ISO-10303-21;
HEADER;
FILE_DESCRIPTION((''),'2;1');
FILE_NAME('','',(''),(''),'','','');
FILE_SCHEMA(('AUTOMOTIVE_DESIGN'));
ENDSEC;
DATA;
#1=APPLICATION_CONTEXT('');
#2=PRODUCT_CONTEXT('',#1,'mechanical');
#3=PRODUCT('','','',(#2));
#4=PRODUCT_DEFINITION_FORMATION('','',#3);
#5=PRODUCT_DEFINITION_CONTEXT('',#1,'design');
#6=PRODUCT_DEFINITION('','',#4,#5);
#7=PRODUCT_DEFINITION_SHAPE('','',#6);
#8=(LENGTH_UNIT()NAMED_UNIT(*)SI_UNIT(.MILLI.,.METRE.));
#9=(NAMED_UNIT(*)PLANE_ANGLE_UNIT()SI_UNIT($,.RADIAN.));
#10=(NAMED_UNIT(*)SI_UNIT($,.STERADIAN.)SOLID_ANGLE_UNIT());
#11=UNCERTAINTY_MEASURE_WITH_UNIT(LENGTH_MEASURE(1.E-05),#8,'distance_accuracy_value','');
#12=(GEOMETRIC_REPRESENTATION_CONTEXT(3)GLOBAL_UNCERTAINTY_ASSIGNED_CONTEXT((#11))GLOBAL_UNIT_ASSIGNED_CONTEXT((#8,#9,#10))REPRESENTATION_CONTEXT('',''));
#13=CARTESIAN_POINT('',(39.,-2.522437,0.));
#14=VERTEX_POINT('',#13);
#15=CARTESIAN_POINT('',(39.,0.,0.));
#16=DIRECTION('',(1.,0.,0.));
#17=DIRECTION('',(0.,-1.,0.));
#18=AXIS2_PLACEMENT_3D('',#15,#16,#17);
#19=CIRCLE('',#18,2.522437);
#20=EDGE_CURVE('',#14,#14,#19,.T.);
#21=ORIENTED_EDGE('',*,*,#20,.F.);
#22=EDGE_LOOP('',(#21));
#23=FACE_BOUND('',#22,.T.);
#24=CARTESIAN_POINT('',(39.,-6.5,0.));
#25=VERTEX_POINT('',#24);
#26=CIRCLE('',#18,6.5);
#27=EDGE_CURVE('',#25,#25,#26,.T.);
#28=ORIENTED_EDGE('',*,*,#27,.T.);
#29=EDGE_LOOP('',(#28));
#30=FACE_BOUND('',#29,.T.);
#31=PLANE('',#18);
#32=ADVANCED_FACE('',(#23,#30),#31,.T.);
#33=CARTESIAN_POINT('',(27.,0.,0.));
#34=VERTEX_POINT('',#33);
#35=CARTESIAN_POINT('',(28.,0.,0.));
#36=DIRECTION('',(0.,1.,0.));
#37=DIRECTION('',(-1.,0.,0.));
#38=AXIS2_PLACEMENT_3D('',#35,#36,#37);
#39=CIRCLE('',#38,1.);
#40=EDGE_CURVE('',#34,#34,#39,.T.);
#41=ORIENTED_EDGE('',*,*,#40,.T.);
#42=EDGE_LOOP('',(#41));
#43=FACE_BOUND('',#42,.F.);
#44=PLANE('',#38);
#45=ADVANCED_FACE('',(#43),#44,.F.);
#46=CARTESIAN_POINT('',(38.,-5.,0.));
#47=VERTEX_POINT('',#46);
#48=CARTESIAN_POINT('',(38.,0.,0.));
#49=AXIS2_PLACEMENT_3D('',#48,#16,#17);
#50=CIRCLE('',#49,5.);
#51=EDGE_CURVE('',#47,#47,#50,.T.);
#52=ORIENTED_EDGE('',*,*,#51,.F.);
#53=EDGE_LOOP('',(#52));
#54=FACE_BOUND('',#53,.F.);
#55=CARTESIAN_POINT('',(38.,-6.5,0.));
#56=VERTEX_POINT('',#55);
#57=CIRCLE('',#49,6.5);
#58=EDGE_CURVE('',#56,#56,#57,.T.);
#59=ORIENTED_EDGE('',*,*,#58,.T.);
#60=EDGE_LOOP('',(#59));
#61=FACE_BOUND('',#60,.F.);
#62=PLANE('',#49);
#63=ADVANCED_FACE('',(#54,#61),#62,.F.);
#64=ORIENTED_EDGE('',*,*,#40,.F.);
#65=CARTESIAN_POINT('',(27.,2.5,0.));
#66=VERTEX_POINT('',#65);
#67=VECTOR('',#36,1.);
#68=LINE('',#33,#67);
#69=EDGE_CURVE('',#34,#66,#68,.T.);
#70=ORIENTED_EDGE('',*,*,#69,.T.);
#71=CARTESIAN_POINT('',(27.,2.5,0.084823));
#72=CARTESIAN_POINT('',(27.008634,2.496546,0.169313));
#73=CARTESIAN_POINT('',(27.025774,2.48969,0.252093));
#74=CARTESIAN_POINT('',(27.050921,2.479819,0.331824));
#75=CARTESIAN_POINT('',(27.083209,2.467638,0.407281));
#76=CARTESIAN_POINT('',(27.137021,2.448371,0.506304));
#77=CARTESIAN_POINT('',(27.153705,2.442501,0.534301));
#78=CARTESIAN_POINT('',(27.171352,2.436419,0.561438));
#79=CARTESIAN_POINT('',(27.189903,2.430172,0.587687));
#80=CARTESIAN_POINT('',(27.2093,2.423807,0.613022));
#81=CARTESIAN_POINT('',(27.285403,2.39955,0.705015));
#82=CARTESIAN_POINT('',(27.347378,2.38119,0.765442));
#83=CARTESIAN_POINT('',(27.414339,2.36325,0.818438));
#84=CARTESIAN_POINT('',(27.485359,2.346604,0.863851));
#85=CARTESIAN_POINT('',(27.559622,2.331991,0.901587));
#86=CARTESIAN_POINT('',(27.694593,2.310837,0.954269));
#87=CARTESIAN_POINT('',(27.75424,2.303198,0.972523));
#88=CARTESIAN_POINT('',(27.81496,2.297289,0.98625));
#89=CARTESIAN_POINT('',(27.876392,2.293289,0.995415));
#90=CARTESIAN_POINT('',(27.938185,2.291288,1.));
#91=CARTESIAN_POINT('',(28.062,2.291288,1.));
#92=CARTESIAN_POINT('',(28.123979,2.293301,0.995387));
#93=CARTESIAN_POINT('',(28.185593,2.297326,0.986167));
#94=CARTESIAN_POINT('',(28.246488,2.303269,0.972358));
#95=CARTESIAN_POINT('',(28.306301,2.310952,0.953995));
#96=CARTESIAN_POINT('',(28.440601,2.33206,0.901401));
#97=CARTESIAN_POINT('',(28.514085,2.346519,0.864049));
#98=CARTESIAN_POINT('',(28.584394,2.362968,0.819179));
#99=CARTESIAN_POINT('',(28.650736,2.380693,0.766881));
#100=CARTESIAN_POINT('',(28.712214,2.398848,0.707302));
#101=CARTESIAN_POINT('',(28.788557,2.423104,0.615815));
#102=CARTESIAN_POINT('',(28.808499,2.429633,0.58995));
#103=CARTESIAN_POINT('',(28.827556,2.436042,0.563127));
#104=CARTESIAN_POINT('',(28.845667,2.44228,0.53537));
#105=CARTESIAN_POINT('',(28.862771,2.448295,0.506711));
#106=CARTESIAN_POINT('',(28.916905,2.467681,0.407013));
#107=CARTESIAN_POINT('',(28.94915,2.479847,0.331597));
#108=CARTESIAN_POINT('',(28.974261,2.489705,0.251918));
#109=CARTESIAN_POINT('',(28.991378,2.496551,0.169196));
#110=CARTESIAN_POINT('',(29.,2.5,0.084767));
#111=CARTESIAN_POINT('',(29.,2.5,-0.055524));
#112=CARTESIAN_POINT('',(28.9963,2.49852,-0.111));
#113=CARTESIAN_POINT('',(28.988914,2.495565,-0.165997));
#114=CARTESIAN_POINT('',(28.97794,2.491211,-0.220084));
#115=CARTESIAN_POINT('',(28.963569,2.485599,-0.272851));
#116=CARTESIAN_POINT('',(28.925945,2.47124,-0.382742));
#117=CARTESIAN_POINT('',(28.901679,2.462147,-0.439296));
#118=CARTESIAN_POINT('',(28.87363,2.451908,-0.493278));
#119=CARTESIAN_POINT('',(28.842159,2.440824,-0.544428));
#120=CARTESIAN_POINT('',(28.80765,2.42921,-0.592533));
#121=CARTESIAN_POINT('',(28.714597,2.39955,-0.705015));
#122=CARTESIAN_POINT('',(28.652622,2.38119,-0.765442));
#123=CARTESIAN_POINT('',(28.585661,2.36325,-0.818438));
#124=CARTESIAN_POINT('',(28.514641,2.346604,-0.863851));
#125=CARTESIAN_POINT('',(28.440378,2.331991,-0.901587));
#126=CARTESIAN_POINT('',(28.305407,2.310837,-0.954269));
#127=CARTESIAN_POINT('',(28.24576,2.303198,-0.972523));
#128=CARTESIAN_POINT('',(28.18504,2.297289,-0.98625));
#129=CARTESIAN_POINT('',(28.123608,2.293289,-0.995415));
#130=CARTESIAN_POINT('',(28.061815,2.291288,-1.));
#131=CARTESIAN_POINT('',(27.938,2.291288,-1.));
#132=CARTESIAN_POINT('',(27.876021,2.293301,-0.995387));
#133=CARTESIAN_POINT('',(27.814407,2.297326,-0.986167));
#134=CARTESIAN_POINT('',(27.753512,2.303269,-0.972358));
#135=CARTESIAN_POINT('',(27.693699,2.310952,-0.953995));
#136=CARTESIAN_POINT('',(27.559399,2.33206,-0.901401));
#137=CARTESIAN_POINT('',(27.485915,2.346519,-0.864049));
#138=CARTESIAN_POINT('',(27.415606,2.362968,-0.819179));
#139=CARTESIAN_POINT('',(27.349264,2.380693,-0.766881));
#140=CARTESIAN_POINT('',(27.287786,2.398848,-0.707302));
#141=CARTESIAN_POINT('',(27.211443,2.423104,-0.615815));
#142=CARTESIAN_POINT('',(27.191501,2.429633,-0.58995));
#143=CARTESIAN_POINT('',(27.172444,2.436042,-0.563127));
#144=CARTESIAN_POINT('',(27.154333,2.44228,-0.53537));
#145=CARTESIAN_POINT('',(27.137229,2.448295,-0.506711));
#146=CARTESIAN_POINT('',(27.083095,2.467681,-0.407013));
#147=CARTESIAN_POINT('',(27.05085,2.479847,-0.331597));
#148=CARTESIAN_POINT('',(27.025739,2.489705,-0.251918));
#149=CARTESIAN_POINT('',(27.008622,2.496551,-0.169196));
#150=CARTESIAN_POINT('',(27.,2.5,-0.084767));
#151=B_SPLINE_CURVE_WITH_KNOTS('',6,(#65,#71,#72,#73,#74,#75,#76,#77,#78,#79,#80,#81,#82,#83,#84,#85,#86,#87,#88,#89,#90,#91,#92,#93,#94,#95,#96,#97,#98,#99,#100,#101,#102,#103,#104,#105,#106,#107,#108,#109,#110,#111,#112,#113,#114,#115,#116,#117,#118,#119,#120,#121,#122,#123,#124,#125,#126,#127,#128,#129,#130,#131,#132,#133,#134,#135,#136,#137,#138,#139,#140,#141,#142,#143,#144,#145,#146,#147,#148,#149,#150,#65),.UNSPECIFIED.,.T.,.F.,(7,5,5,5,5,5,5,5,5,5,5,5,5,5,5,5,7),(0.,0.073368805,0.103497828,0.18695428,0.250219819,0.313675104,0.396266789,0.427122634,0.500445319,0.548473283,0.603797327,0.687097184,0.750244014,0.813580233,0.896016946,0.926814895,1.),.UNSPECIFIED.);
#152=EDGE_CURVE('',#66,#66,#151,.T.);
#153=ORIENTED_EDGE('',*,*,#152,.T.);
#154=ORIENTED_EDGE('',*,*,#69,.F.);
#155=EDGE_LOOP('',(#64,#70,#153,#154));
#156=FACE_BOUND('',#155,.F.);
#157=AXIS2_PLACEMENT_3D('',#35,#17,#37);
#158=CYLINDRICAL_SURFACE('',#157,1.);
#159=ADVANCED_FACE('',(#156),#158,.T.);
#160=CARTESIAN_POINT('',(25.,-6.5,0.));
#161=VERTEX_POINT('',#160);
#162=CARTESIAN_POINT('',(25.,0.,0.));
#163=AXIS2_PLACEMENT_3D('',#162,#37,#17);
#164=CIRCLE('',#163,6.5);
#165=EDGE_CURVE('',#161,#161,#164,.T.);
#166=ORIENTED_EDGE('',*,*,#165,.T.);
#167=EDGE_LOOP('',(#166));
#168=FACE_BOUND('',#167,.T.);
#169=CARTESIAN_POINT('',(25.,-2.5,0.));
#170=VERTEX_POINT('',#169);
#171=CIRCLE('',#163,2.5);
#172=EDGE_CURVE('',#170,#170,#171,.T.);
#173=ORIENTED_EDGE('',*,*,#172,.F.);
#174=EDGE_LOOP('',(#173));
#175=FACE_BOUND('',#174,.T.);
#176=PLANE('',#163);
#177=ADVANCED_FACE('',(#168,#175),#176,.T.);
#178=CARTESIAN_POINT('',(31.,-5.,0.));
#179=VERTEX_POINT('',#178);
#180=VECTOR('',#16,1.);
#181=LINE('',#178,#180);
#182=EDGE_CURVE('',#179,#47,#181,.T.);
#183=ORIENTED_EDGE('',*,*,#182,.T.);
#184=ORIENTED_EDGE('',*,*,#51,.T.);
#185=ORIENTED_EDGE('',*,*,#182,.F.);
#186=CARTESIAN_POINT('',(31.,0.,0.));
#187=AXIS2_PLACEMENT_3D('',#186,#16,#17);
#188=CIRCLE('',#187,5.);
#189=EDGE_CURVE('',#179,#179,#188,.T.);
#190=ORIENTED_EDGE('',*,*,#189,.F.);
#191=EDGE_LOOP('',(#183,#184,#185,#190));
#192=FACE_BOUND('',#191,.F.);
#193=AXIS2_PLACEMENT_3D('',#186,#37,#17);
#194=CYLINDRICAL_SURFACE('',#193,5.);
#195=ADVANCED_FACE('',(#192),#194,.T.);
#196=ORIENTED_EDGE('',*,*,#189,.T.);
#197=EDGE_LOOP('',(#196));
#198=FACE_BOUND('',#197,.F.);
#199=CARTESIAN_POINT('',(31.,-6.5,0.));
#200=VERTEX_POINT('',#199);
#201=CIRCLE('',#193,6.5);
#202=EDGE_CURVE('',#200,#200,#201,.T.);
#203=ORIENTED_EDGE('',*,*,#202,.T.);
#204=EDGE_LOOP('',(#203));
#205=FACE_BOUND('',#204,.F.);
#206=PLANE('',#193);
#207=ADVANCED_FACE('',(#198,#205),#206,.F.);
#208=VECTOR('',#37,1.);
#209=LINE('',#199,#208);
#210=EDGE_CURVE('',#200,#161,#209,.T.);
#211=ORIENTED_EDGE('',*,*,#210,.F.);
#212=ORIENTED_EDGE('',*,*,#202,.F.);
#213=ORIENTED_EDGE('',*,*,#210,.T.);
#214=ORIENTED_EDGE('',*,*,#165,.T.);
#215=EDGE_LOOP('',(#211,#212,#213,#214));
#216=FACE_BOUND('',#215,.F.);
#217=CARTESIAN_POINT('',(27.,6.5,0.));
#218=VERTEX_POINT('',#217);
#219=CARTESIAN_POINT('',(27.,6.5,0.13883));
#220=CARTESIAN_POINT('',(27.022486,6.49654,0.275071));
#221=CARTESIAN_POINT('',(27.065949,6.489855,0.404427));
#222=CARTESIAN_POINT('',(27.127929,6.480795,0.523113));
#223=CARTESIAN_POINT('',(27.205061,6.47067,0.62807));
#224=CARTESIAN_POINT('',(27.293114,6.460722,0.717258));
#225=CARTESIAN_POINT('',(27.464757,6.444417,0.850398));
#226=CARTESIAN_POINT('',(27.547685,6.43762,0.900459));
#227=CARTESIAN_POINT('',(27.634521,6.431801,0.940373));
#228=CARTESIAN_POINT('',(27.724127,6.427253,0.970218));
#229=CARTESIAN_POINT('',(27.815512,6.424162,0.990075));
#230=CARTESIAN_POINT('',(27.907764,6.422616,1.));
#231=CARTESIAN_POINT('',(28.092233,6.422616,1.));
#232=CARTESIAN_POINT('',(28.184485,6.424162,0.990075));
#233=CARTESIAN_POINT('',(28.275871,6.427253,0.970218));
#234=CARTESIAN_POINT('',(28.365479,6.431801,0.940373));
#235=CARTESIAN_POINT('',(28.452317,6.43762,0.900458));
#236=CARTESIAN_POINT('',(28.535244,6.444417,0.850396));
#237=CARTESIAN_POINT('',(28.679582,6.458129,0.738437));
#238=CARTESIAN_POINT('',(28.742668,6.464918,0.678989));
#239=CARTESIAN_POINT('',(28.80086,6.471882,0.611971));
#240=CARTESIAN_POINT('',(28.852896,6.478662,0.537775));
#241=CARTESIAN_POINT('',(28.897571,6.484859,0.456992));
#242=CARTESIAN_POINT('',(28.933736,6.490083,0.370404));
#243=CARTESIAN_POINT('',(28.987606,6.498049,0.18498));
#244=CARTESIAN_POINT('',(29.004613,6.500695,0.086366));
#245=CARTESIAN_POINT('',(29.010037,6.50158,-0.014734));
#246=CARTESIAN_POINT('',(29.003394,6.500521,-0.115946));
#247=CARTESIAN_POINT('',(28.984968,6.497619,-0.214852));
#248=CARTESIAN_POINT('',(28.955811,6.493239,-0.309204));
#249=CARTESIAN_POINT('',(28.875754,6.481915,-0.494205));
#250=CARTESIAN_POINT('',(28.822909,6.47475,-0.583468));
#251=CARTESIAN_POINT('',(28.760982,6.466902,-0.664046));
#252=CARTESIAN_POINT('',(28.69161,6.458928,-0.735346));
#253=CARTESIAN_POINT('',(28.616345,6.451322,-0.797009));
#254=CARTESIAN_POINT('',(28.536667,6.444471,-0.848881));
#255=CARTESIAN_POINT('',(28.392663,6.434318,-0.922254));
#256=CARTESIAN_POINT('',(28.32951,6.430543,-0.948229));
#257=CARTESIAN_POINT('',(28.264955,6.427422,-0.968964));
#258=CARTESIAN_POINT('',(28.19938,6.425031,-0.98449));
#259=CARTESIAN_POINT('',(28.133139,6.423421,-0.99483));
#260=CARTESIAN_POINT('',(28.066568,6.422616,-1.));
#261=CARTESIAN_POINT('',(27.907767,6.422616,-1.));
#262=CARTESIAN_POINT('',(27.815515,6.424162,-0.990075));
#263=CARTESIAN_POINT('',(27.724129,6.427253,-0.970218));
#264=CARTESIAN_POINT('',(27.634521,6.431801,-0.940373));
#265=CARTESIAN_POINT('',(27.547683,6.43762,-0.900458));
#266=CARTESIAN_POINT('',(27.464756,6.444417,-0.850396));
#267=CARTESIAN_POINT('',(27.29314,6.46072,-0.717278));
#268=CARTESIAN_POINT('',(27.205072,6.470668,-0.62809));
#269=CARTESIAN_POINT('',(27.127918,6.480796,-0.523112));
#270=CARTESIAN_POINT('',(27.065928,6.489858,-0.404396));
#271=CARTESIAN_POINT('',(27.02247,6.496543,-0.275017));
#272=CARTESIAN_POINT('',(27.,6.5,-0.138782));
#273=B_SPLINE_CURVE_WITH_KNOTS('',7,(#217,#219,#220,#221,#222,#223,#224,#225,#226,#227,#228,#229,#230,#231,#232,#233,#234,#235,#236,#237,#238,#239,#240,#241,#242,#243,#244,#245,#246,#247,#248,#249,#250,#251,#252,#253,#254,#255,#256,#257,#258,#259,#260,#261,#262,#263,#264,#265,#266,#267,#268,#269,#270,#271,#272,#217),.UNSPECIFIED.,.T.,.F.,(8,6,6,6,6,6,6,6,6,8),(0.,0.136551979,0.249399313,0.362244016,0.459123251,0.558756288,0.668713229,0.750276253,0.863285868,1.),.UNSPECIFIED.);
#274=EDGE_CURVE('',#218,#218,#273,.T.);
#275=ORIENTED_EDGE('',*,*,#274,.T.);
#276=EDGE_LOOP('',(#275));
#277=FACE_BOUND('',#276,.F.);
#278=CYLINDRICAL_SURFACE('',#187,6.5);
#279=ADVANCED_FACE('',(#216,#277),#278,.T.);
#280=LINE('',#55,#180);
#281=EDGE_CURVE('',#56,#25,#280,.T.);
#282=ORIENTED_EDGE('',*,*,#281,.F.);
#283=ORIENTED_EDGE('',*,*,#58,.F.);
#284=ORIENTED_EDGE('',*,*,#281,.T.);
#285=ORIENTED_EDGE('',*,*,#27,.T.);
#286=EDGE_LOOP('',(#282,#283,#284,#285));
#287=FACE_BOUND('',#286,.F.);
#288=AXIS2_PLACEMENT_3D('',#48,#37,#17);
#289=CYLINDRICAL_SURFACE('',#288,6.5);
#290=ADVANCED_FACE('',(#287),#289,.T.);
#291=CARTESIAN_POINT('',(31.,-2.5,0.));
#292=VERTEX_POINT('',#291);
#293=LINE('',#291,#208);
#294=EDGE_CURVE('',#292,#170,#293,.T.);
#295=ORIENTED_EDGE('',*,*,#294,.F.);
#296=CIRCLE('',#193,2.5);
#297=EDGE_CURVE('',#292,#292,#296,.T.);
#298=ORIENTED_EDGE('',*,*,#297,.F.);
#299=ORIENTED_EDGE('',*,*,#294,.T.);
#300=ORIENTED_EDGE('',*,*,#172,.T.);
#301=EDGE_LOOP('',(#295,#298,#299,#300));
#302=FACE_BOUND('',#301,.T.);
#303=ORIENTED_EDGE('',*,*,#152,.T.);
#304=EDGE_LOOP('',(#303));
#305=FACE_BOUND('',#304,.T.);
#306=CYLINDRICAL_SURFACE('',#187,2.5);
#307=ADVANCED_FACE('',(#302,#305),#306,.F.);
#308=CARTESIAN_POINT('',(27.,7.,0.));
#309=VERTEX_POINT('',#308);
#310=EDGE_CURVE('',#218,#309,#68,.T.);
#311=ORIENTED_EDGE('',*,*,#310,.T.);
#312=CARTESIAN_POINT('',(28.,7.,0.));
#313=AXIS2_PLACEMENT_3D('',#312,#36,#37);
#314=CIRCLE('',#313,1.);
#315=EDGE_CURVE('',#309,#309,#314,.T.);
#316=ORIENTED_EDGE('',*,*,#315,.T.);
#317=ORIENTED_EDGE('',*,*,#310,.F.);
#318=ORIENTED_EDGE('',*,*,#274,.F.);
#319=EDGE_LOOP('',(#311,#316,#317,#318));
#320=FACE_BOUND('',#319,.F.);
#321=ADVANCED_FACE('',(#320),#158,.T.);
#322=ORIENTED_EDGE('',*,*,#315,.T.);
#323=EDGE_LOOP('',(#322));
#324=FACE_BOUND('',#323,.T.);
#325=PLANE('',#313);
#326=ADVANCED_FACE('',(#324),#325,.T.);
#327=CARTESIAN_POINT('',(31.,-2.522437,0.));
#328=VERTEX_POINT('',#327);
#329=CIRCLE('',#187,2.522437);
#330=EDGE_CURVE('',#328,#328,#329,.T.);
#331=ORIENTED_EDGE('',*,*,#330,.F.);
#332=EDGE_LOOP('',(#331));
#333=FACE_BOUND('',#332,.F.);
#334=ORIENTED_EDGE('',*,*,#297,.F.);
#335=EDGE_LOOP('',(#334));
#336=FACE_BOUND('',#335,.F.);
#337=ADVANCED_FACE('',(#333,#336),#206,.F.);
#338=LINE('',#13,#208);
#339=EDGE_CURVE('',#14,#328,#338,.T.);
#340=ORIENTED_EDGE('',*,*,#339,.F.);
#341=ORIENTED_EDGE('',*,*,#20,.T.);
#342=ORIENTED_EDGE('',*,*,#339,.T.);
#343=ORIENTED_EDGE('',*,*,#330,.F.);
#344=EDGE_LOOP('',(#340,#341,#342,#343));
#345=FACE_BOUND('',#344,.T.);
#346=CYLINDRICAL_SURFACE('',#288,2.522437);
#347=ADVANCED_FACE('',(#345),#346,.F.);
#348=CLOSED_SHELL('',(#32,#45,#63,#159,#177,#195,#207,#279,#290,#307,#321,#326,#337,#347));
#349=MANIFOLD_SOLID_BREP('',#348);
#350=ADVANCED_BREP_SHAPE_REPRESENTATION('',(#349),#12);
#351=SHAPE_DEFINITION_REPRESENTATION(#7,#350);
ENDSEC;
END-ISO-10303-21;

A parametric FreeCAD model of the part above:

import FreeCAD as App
import Part
import Sketcher
Q = App.Units.Quantity

doc = App.newDocument("Part")
body = doc.addObject("PartDesign::Body", "Body")

# Sketch on YZ plane
sketch1 = body.newObject("Sketcher::SketchObject", "Sketch")
sketch1.AttachmentSupport = (doc.getObject("YZ_Plane"), [""])
sketch1.MapMode = "FlatFace"
sketch1.addGeometry([
    Part.Circle(App.Vector(0, 0, 0), App.Vector(0, 0, 1), 6.5),
    Part.Circle(App.Vector(0, 0, 0), App.Vector(0, 0, 1), 2.5),
], False)
sketch1.addConstraint([
    Sketcher.Constraint("Coincident", 0, 3, -1, 1),
    Sketcher.Constraint("Coincident", 1, 3, -1, 1),
    Sketcher.Constraint("Diameter", 0, Q("13 mm")),
    Sketcher.Constraint("Diameter", 1, Q("5 mm")),
])
pad1 = body.newObject("PartDesign::Pad", "Pad")
pad1.Profile = sketch1
pad1.Length = 6

# Sketch on YZ plane
sketch2 = body.newObject("Sketcher::SketchObject", "Sketch001")
sketch2.AttachmentSupport = (doc.getObject("YZ_Plane"), [""])
sketch2.MapMode = "FlatFace"
sketch2.addGeometry([
    Part.Circle(App.Vector(0, 0, 0), App.Vector(0, 0, 1), 5),
    Part.Circle(App.Vector(0, 0, 0), App.Vector(0, 0, 1), 2.522437),
], False)
sketch2.addConstraint([
    Sketcher.Constraint("Coincident", 0, 3, -1, 1),
    Sketcher.Constraint("Coincident", 1, 3, -1, 1),
    Sketcher.Constraint("Diameter", 0, Q("10 mm")),
    Sketcher.Constraint("Diameter", 1, Q("5.044874 mm")),
])
pad2 = body.newObject("PartDesign::Pad", "Pad001")
pad2.Profile = sketch2
pad2.Length = 7
pad2.Reversed = True

# Sketch on YZ plane
sketch3 = body.newObject("Sketcher::SketchObject", "Sketch002")
sketch3.AttachmentSupport = (doc.getObject("YZ_Plane"), [""])
sketch3.MapMode = "FlatFace"
sketch3.AttachmentOffset = App.Placement(App.Vector(0, 0, -7), App.Rotation())
sketch3.addGeometry([
    Part.Circle(App.Vector(0, 0, 0), App.Vector(0, 0, 1), 6.5),
    Part.Circle(App.Vector(0, 0, 0), App.Vector(0, 0, 1), 2.522437),
], False)
sketch3.addConstraint([
    Sketcher.Constraint("Coincident", 0, 3, -1, 1),
    Sketcher.Constraint("Coincident", 1, 3, -1, 1),
    Sketcher.Constraint("Diameter", 0, Q("13 mm")),
    Sketcher.Constraint("Diameter", 1, Q("5.044874 mm")),
])
pad3 = body.newObject("PartDesign::Pad", "Pad002")
pad3.Profile = sketch3
pad3.Length = 1
pad3.Reversed = True

# Sketch on XZ plane
sketch4 = body.newObject("Sketcher::SketchObject", "Sketch003")
sketch4.AttachmentSupport = (doc.getObject("XZ_Plane"), [""])
sketch4.MapMode = "FlatFace"
sketch4.addGeometry(Part.Circle(App.Vector(3, 0, 0), App.Vector(0, 0, 1), 1), False)
sketch4.addConstraint([
    Sketcher.Constraint("PointOnObject", 0, 3, -1),
    Sketcher.Constraint("Diameter", 0, Q("2 mm")),
    Sketcher.Constraint("DistanceX", -1, 1, 0, 3, Q("3 mm")),
])
pad4 = body.newObject("PartDesign::Pad", "Pad003")
pad4.Profile = sketch4
pad4.Length = 7
body2 = doc.addObject("PartDesign::Body", "Body001")
doc.recompute()

body.Placement = App.Placement(App.Vector(31, 0, 0), App.Rotation(App.Vector(0, 0, 1), 180))
boolean = body2.newObject("PartDesign::Boolean", "Boolean")
boolean.Type = "Fuse"
boolean.addObjects([body])

doc.recompute()
